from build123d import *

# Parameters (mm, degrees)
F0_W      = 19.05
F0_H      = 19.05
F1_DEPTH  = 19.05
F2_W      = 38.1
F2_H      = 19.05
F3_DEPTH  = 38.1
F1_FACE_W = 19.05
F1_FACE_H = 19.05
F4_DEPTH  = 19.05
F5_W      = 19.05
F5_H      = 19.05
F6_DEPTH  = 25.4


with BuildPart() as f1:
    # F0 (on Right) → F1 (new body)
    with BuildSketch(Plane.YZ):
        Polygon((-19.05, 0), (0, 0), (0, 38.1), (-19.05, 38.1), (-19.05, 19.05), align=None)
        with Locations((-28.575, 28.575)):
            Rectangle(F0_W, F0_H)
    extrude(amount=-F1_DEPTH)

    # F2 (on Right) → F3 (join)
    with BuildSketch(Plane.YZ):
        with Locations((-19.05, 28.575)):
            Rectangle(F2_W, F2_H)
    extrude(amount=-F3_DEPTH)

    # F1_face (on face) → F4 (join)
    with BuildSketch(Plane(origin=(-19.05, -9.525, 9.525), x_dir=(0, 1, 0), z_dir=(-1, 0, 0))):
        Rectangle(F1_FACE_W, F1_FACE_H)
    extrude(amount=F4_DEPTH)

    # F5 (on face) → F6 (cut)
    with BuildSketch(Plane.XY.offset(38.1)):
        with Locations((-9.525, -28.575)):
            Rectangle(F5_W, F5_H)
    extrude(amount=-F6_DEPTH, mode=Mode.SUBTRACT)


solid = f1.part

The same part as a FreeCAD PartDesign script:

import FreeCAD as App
import Part
import Sketcher
from FreeCAD import Vector
Q = App.Units.Quantity

doc = App.newDocument("Part")
body = doc.addObject("PartDesign::Body", "Body")

# Sketch on YZ plane
sketch1 = doc.addObject("Sketcher::SketchObject", "Sketch")
body.addObject(sketch1)
sketch1.AttachmentSupport = (doc.YZ_Plane, [""])
sketch1.MapMode = "FlatFace"
sketch1.addGeometry([
    Part.LineSegment(Vector(-19, 0, 0), Vector(0, 0, 0)),  # 0
    Part.LineSegment(Vector(0, 0, 0), Vector(0, 38, 0)),  # 1
    Part.LineSegment(Vector(0, 38, 0), Vector(-38, 38, 0)),  # 2
    Part.LineSegment(Vector(-38, 38, 0), Vector(-38, 19, 0)),  # 3
    Part.LineSegment(Vector(-38, 19, 0), Vector(-19, 19, 0)),  # 4
    Part.LineSegment(Vector(-19, 19, 0), Vector(-19, 0, 0)),  # 5
], False)
sketch1.addConstraint([
    Sketcher.Constraint("Coincident", 0, 2, 1, 1),
    Sketcher.Constraint("Coincident", 1, 2, 2, 1),
    Sketcher.Constraint("Coincident", 2, 2, 3, 1),
    Sketcher.Constraint("Coincident", 3, 2, 4, 1),
    Sketcher.Constraint("Coincident", 4, 2, 5, 1),
    Sketcher.Constraint("Coincident", 5, 2, 0, 1),
    Sketcher.Constraint("Horizontal", 0),
    Sketcher.Constraint("Vertical", 1),
    Sketcher.Constraint("Horizontal", 2),
    Sketcher.Constraint("Vertical", 3),
    Sketcher.Constraint("Horizontal", 4),
    Sketcher.Constraint("Vertical", 5),
    Sketcher.Constraint("Coincident", 0, 2, -1, 1),
    Sketcher.Constraint("Equal", 0, 4),
    Sketcher.Constraint("Equal", 2, 1),
    Sketcher.Constraint("Equal", 4, 3),
    Sketcher.Constraint("DistanceX", 2, 2, 2, 1, Q("1.5 in")),
])
pad1 = doc.addObject("PartDesign::Pad", "Pad")
body.addObject(pad1)
pad1.Profile = sketch1
pad1.Length = Q("0.75 in")
pad1.Reversed = True

# Sketch on YZ plane
sketch2 = doc.addObject("Sketcher::SketchObject", "Sketch001")
body.addObject(sketch2)
sketch2.AttachmentSupport = (doc.YZ_Plane, [""])
sketch2.MapMode = "FlatFace"
sketch2.addGeometry([
    Part.LineSegment(Vector(-38, 38, 0), Vector(-38, 19, 0)),
    Part.LineSegment(Vector(-38, 19, 0), Vector(0, 19, 0)),
    Part.LineSegment(Vector(0, 19, 0), Vector(0, 38, 0)),
    Part.LineSegment(Vector(0, 38, 0), Vector(-38, 38, 0)),
], False)
sketch2.addConstraint([
    Sketcher.Constraint("Coincident", 0, 2, 1, 1),
    Sketcher.Constraint("Coincident", 1, 2, 2, 1),
    Sketcher.Constraint("Coincident", 2, 2, 3, 1),
    Sketcher.Constraint("Coincident", 3, 2, 0, 1),
    Sketcher.Constraint("Vertical", 0),
    Sketcher.Constraint("Horizontal", 1),
    Sketcher.Constraint("Vertical", 2),
    Sketcher.Constraint("Horizontal", 3),
    Sketcher.Constraint("PointOnObject", 1, 2, -2),
    Sketcher.Constraint("DistanceX", 1, 1, 1, 2, Q("1.5 in")),
    Sketcher.Constraint("DistanceY", 0, 2, 0, 1, Q("0.75 in")),
    Sketcher.Constraint("DistanceY", -1, 1, 2, 2, Q("1.5 in")),
])
pad2 = doc.addObject("PartDesign::Pad", "Pad001")
body.addObject(pad2)
pad2.Profile = sketch2
pad2.Length = Q("1.5 in")
pad2.Reversed = True

# Sketch on YZ plane
sketch3 = doc.addObject("Sketcher::SketchObject", "Sketch002")
body.addObject(sketch3)
sketch3.AttachmentSupport = (doc.YZ_Plane, [""])
sketch3.MapMode = "FlatFace"
sketch3.AttachmentOffset = App.Placement(Vector(0, 0, -0.75 * 25.4), App.Rotation())
sketch3.addGeometry([
    Part.LineSegment(Vector(-19, 0, 0), Vector(-19, 19, 0)),
    Part.LineSegment(Vector(-19, 19, 0), Vector(0, 19, 0)),
    Part.LineSegment(Vector(0, 19, 0), Vector(0, 0, 0)),
    Part.LineSegment(Vector(0, 0, 0), Vector(-19, 0, 0)),
], False)
sketch3.addConstraint([
    Sketcher.Constraint("Coincident", 0, 2, 1, 1),
    Sketcher.Constraint("Coincident", 1, 2, 2, 1),
    Sketcher.Constraint("Coincident", 2, 2, 3, 1),
    Sketcher.Constraint("Coincident", 3, 2, 0, 1),
    Sketcher.Constraint("Vertical", 0),
    Sketcher.Constraint("Horizontal", 1),
    Sketcher.Constraint("Vertical", 2),
    Sketcher.Constraint("Horizontal", 3),
    Sketcher.Constraint("Coincident", 2, 2, -1, 1),
    Sketcher.Constraint("Equal", 3, 0),
    Sketcher.Constraint("DistanceX", 1, 1, 1, 2, Q("0.75 in")),
])
pad3 = doc.addObject("PartDesign::Pad", "Pad002")
body.addObject(pad3)
pad3.Profile = sketch3
pad3.Length = Q("0.75 in")
pad3.Reversed = True

# Sketch on XY plane
sketch4 = doc.addObject("Sketcher::SketchObject", "Sketch003")
body.addObject(sketch4)
sketch4.AttachmentSupport = (doc.XY_Plane, [""])
sketch4.MapMode = "FlatFace"
sketch4.AttachmentOffset = App.Placement(Vector(0, 0, 1.5 * 25.4), App.Rotation())
sketch4.addGeometry([
    Part.LineSegment(Vector(-19, -19, 0), Vector(-19, -38, 0)),
    Part.LineSegment(Vector(-19, -38, 0), Vector(0, -38, 0)),
    Part.LineSegment(Vector(0, -38, 0), Vector(0, -19, 0)),
    Part.LineSegment(Vector(0, -19, 0), Vector(-19, -19, 0)),
], False)
sketch4.addConstraint([
    Sketcher.Constraint("Coincident", 0, 2, 1, 1),
    Sketcher.Constraint("Coincident", 1, 2, 2, 1),
    Sketcher.Constraint("Coincident", 2, 2, 3, 1),
    Sketcher.Constraint("Coincident", 3, 2, 0, 1),
    Sketcher.Constraint("Vertical", 0),
    Sketcher.Constraint("Horizontal", 1),
    Sketcher.Constraint("Vertical", 2),
    Sketcher.Constraint("Horizontal", 3),
    Sketcher.Constraint("PointOnObject", 1, 2, -2),
    Sketcher.Constraint("Equal", 3, 0),
    Sketcher.Constraint("DistanceX", 1, 1, 1, 2, Q("0.75 in")),
    Sketcher.Constraint("DistanceY", 0, 2, -1, 1, Q("1.5 in")),
])
pocket1 = doc.addObject("PartDesign::Pocket", "Pocket")
body.addObject(pocket1)
pocket1.Profile = sketch4
pocket1.Length = Q("1 in")

doc.recompute()
